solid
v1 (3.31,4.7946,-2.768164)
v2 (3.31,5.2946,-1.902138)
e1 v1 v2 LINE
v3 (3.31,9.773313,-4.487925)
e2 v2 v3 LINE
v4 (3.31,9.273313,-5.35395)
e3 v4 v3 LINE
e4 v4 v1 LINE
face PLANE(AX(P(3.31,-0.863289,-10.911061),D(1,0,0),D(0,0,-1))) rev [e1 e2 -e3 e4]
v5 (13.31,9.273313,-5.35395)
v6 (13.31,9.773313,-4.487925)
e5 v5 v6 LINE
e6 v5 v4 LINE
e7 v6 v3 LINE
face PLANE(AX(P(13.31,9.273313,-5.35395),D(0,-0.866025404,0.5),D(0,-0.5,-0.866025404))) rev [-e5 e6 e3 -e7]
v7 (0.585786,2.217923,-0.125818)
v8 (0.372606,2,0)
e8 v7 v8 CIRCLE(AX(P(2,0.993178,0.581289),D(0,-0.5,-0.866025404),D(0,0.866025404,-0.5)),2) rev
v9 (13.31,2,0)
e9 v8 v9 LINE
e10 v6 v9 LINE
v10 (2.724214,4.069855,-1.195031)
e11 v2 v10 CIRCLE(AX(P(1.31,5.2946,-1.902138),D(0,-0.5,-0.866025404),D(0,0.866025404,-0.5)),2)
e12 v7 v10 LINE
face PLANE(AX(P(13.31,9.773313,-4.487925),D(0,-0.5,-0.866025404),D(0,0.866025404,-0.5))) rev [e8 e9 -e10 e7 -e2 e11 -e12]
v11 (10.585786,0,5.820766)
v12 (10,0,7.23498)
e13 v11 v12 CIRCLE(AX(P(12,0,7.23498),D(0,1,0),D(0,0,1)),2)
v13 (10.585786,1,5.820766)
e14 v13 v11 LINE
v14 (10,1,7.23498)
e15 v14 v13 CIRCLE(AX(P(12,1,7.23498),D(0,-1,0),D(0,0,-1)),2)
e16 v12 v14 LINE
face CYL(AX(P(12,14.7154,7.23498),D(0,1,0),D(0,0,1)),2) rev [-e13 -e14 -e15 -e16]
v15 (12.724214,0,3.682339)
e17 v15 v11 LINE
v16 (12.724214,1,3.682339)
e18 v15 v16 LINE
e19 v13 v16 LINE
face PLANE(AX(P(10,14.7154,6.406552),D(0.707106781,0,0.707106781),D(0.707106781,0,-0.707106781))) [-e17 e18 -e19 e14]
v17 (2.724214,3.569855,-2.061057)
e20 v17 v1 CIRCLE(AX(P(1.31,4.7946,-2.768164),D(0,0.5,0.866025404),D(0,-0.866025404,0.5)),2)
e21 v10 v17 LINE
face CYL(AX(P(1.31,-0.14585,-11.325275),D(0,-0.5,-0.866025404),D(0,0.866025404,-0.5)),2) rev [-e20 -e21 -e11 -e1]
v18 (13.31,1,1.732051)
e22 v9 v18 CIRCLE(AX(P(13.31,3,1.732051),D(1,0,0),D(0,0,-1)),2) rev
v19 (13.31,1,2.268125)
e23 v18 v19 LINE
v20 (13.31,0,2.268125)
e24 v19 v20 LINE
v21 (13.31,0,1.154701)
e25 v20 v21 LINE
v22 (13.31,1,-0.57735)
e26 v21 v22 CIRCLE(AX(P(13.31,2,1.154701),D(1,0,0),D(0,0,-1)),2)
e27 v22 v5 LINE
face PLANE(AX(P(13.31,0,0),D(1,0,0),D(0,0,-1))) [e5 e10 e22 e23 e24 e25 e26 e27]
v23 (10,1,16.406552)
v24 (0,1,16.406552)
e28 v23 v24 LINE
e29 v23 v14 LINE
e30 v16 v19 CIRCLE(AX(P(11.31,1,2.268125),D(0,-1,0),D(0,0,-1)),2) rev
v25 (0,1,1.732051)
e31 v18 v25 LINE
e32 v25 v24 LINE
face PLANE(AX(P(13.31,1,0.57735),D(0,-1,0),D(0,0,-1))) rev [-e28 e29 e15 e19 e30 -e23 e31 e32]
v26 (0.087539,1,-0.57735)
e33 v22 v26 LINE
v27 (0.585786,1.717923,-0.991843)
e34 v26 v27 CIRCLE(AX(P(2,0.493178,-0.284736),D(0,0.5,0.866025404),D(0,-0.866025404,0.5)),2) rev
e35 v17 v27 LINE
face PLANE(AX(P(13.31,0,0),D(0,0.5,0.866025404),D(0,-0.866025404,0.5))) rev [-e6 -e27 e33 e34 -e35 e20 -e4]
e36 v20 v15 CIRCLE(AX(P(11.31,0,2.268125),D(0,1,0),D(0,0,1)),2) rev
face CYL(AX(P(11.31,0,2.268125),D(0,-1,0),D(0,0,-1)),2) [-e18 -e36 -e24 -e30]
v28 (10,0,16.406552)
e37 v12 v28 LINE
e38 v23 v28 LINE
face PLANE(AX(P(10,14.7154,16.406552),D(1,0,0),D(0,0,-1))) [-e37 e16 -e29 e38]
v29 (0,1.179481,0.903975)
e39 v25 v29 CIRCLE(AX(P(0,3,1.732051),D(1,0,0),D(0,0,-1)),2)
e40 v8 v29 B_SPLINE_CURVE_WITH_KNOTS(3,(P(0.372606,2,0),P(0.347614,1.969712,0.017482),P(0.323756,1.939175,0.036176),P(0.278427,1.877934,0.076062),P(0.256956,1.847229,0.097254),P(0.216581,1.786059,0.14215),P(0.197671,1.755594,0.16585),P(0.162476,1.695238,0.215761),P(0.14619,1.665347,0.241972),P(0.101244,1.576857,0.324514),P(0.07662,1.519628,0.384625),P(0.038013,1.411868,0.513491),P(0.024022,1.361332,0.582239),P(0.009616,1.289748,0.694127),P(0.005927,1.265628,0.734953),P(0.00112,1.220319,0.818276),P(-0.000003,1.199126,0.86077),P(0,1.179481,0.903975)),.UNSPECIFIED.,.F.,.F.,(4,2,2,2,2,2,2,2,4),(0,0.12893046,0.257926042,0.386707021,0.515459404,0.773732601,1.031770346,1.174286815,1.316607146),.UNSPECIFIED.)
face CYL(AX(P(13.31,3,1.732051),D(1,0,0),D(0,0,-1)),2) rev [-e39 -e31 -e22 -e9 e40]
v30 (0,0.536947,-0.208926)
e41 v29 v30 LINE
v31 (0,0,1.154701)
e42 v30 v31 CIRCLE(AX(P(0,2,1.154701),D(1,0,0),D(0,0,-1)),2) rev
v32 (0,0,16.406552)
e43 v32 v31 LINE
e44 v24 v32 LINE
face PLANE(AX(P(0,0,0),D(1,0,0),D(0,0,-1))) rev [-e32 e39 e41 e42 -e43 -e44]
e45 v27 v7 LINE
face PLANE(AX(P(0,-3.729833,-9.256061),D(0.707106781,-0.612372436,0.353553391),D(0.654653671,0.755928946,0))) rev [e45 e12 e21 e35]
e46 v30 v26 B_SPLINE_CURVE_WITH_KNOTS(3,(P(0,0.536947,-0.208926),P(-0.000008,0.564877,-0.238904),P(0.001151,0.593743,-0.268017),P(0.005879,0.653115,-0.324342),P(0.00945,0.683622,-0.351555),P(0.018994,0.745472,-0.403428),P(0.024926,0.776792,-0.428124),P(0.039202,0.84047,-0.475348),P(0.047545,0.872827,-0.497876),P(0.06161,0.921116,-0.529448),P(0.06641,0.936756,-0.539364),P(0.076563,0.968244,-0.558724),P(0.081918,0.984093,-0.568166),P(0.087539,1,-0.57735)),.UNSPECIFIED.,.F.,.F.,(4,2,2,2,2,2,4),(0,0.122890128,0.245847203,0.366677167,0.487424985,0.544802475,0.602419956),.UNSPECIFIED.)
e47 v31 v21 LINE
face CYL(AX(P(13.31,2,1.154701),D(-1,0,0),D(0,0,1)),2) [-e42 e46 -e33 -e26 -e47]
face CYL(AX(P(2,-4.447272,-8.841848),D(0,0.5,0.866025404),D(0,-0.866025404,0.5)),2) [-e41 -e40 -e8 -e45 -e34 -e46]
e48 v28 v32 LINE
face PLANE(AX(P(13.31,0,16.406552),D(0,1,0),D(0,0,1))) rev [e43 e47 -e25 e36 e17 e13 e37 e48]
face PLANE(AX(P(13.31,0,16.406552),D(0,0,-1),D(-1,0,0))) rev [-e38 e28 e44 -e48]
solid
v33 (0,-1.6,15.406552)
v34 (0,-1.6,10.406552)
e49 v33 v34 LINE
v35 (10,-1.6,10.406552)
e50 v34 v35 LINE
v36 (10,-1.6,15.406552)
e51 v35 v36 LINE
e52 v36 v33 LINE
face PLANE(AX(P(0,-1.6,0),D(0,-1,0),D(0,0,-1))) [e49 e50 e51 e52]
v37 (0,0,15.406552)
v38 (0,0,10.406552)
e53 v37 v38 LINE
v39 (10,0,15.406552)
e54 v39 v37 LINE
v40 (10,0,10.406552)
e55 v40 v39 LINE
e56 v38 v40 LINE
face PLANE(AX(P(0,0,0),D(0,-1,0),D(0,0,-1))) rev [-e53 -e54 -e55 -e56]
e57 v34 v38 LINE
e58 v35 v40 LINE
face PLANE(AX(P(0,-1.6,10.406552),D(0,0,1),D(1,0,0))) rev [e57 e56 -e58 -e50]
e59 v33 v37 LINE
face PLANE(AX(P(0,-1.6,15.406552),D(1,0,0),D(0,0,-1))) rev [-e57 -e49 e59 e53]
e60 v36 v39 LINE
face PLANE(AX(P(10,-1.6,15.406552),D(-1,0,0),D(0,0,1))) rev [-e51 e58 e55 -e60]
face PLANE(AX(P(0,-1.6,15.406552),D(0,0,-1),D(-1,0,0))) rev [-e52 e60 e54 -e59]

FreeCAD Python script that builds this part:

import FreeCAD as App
import Part
import Sketcher
Q = App.Units.Quantity


def edges_at(feature, points):
    """Names of the edges that pass closest to the given points."""
    edges = feature.Shape.Edges
    near = lambda p: min(range(len(edges)), key=lambda i: edges[i].distToShape(Part.Vertex(*p))[0])
    return sorted({f"Edge{near(p) + 1}" for p in points})


def add_polygon(sketch, points):
    """Adds a closed chain of lines whose ends are joined by coincident constraints."""
    first, n = sketch.GeometryCount, len(points)
    for a, b in zip(points, points[1:] + points[:1]):
        sketch.addGeometry(Part.LineSegment(App.Vector(*a, 0), App.Vector(*b, 0)), False)
    for i in range(n):
        sketch.addConstraint(Sketcher.Constraint("Coincident", first + i, 2, first + (i + 1) % n, 1))

doc = App.newDocument("Part")
body = doc.addObject("PartDesign::Body", "Body")

sketch1 = body.newObject("Sketcher::SketchObject", "Sketch")
sketch1.AttachmentSupport = (doc.getObject("YZ_Plane"), [""])
sketch1.MapMode = "FlatFace"
add_polygon(sketch1, [(9.8, -4.5), (1, 0.6), (1, 16.4), (0, 16.4), (0, 0), (9.3, -5.4)])
sketch1.addConstraint([
    Sketcher.Constraint("Vertical", 1),
    Sketcher.Constraint("Horizontal", 2),
    Sketcher.Constraint("Vertical", 3),
    Sketcher.Constraint("Coincident", 3, 2, -1, 1),
    Sketcher.Constraint("Parallel", 0, 4),
    Sketcher.Constraint("Perpendicular", 4, 5),
    Sketcher.Constraint("DistanceX", 2, 2, 2, 1, 1.0),
    Sketcher.Constraint("Angle", 0, Q("150 deg")),
    Sketcher.Constraint("Distance", 5, 1.0),
    Sketcher.Constraint("Distance", 4, 10.7079),
    Sketcher.Constraint("DistanceY", 1, 1, 1, 2, 15.829202),
])
pad1 = body.newObject("PartDesign::Pad", "Pad")
pad1.Profile = sketch1
pad1.Length = 13.31

sketch2 = body.newObject("Sketcher::SketchObject", "Sketch001")
sketch2.AttachmentSupport = (doc.getObject("XZ_Plane"), [""])
sketch2.MapMode = "FlatFace"
add_polygon(sketch2, [(10, 16.4), (13.3, 16.4), (13.3, 3.1), (10, 6.4)])
sketch2.addConstraint([
    Sketcher.Constraint("Horizontal", 0),
    Sketcher.Constraint("Vertical", 1),
    Sketcher.Constraint("Vertical", 3),
    Sketcher.Constraint("DistanceY", 3, 1, 3, 2, 10.0),
    Sketcher.Constraint("Angle", 2, Q("135 deg")),
    Sketcher.Constraint("DistanceX", -1, 1, 2, 2, 10.0),
    Sketcher.Constraint("DistanceX", 0, 1, 0, 2, 3.31),
    Sketcher.Constraint("DistanceY", -1, 1, 0, 2, 16.406552),
])
pocket1 = body.newObject("PartDesign::Pocket", "Pocket")
pocket1.Profile = sketch2
pocket1.Length = 1

sketch3 = body.newObject("Sketcher::SketchObject", "Sketch002")
sketch3.Placement = App.Placement(App.Vector(0, 0.5, 0.866025), App.Rotation(App.Vector(1, 0, 0), App.Vector(0, 0.866025404, -0.5), App.Vector(0, 0.5, 0.866025404), "ZXY"))
add_polygon(sketch3, [(0, 10.7), (0, 1.4), (3.3, 4.7), (3.3, 10.7)])
sketch3.addConstraint([
    Sketcher.Constraint("Vertical", 0),
    Sketcher.Constraint("Vertical", 2),
    Sketcher.Constraint("Horizontal", 3),
    Sketcher.Constraint("PointOnObject", 0, 2, -2),
    Sketcher.Constraint("DistanceY", 2, 1, 2, 2, 6.0),
    Sketcher.Constraint("Angle", 1, Q("45 deg")),
    Sketcher.Constraint("DistanceX", 3, 2, 3, 1, 3.31),
    Sketcher.Constraint("DistanceY", -1, 1, 0, 2, 1.3979),
])
pocket2 = body.newObject("PartDesign::Pocket", "Pocket001")
pocket2.Profile = sketch3
pocket2.Length = 1
doc.recompute()

fillet = body.newObject("PartDesign::Fillet", "Fillet")
fillet.Base = (pocket2, edges_at(pocket2, [(6.655, 1, 0.577), (6.655, 0, 0)]))
fillet.Radius = 2
doc.recompute()

fillet2 = body.newObject("PartDesign::Fillet", "Fillet001")
fillet2.Base = (fillet, edges_at(fillet, [
    (3.31, 4.327, -1.921),
    (0, 1.468, -0.254),
    (10, 0.5, 6.407),
    (13.31, 0.5, 3.097),
]))
fillet2.Radius = 2
body2 = doc.addObject("PartDesign::Body", "Body001")

sketch4 = body2.newObject("Sketcher::SketchObject", "Sketch003")
sketch4.AttachmentSupport = (doc.getObject("XZ_Plane001"), [""])
sketch4.MapMode = "FlatFace"
add_polygon(sketch4, [(0, 15), (0, 10), (10, 10), (10, 15)])
sketch4.addConstraint([
    Sketcher.Constraint("Vertical", 0),
    Sketcher.Constraint("Horizontal", 1),
    Sketcher.Constraint("Vertical", 2),
    Sketcher.Constraint("Horizontal", 3),
    Sketcher.Constraint("PointOnObject", 0, 2, -2),
    Sketcher.Constraint("DistanceX", 1, 1, 1, 2, 10.0),
    Sketcher.Constraint("DistanceY", 0, 2, 0, 1, 5.0),
    Sketcher.Constraint("DistanceY", -1, 1, 0, 2, 10.406552),
])
pad2 = body2.newObject("PartDesign::Pad", "Pad001")
pad2.Profile = sketch4
pad2.Length = 1.6

doc.recompute()
